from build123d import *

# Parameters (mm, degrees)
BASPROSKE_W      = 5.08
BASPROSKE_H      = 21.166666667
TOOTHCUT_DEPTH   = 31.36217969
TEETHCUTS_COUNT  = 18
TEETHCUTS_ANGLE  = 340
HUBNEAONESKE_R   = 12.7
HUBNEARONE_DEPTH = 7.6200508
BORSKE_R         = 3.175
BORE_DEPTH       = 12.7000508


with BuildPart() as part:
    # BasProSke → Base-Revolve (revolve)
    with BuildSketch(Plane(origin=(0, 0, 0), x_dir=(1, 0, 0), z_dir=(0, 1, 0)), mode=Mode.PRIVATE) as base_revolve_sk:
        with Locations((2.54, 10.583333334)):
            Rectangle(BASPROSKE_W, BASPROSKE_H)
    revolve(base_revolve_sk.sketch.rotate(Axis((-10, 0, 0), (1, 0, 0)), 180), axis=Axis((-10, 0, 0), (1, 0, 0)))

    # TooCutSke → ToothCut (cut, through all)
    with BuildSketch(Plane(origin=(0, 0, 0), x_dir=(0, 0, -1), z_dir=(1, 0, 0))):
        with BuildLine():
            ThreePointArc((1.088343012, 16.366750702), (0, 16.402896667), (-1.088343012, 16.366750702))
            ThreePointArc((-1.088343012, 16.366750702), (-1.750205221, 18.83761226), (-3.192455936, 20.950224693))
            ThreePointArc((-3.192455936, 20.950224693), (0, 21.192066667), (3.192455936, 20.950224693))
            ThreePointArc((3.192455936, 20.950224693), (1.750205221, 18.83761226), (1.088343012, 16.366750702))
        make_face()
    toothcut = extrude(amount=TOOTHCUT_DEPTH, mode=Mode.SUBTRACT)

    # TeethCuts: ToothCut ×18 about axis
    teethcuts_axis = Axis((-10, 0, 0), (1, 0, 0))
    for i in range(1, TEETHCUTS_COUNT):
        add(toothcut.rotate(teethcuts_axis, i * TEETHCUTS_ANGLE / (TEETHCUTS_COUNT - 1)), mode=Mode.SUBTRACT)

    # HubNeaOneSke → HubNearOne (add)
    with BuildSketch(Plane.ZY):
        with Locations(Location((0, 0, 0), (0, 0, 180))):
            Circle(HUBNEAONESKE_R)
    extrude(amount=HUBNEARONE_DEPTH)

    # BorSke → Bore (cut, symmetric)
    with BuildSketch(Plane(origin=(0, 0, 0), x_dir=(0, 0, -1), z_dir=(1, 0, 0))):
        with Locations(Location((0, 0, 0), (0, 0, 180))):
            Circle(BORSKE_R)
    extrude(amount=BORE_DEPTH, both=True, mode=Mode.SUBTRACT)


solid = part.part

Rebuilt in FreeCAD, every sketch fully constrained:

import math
import FreeCAD as App
import Part
import Sketcher
Q = App.Units.Quantity

doc = App.newDocument("Part")
params = doc.addObject("Spreadsheet::Sheet", "Params")
for row, (alias, value) in enumerate([
    ("sketch1_width", "0.2 in"),
    ("revolution_angle", "360 deg"),
    ("sketch2_radius", "0.3 in"),
    ("sketch3_diameter", "1 in"),
    ("pad1_length", "7.620051 mm"),
    ("sketch4_diameter", "0.25 in"),
    ("pocket2_length", "25.400102 mm"),
], start=1):
    params.set(f"A{row}", alias)
    params.set(f"B{row}", "=" + value)
    params.setAlias(f"B{row}", alias)

body = doc.addObject("PartDesign::Body", "Body")

# Sketch on XZ plane
sketch1 = doc.addObject("Sketcher::SketchObject", "Sketch")
body.addObject(sketch1)
sketch1.AttachmentSupport = (doc.XZ_Plane, [""])
sketch1.MapMode = "FlatFace"
sketch1.addGeometry([
    Part.LineSegment(App.Vector(0, -21, 0), App.Vector(0, 0, 0)),
    Part.LineSegment(App.Vector(0, 0, 0), App.Vector(5, 0, 0)),
    Part.LineSegment(App.Vector(5, 0, 0), App.Vector(5, -21, 0)),
    Part.LineSegment(App.Vector(5, -21, 0), App.Vector(0, -21, 0)),
], False)
sketch1.addConstraint([
    Sketcher.Constraint("Coincident", 0, 2, 1, 1),
    Sketcher.Constraint("Coincident", 1, 2, 2, 1),
    Sketcher.Constraint("Coincident", 2, 2, 3, 1),
    Sketcher.Constraint("Coincident", 3, 2, 0, 1),
    Sketcher.Constraint("Vertical", 0),
    Sketcher.Constraint("Horizontal", 1),
    Sketcher.Constraint("Vertical", 2),
    Sketcher.Constraint("Horizontal", 3),
    Sketcher.Constraint("Coincident", 0, 2, -1, 1),
    Sketcher.Constraint("DistanceX", 1, 1, 1, 2, Q("0.2 in")),
    Sketcher.Constraint("DistanceY", 0, 1, 0, 2, 21.166667),
])
sketch1.setExpression("Constraints[9]", "Params.sketch1_width")
revolution = doc.addObject("PartDesign::Revolution", "Revolution")
body.addObject(revolution)
revolution.Profile = sketch1
revolution.ReferenceAxis = (sketch1, ["H_Axis"])
revolution.setExpression("Angle", "Params.revolution_angle")

# Sketch on YZ plane
sketch2 = doc.addObject("Sketcher::SketchObject", "Sketch001")
body.addObject(sketch2)
sketch2.AttachmentSupport = (doc.YZ_Plane, [""])
sketch2.MapMode = "FlatFace"
sketch2.addGeometry([
    Part.ArcOfCircle(Part.Circle(App.Vector(0, 0, 0), App.Vector(0, 0, 1), 16.4), math.radians(-3.8), math.radians(3.8)),
    Part.ArcOfCircle(Part.Circle(App.Vector(15.7, -8.7, 0), App.Vector(0, 0, 1), 7.6), math.radians(46), math.radians(85)),
    Part.ArcOfCircle(Part.Circle(App.Vector(0, 0, 0), App.Vector(0, 0, 1), 21.2), math.radians(-8.66), math.radians(8.66)),
    Part.ArcOfCircle(Part.Circle(App.Vector(15.7, 8.7, 0), App.Vector(0, 0, 1), 7.6), math.radians(-85), math.radians(-46)),
], False)
sketch2.addConstraint([
    Sketcher.Constraint("Coincident", 0, 1, 1, 2),
    Sketcher.Constraint("Coincident", 1, 1, 2, 1),
    Sketcher.Constraint("Coincident", 2, 2, 3, 2),
    Sketcher.Constraint("Coincident", 3, 1, 0, 2),
    Sketcher.Constraint("Coincident", 0, 3, -1, 1),
    Sketcher.Constraint("Coincident", 2, 3, -1, 1),
    Sketcher.Constraint("Equal", 1, 3),
    Sketcher.Constraint("Symmetric", 1, 3, 3, 3, -1),
    Sketcher.Constraint("Radius", 1, Q("0.3 in")),
    Sketcher.Constraint("Radius", 0, 16.402896),
    Sketcher.Constraint("Radius", 2, 21.192067),
    Sketcher.Constraint("DistanceY", 0, 1, 3, 3, 9.763701),
    Sketcher.Constraint("DistanceY", 0, 1, 2, 2, 4.280799),
])
sketch2.setExpression("Constraints[8]", "Params.sketch2_radius")
pocket1 = doc.addObject("PartDesign::Pocket", "Pocket")
body.addObject(pocket1)
pocket1.Profile = sketch2
pocket1.Type = "ThroughAll"
pocket1.Reversed = True
doc.recompute()

polarpattern = doc.addObject("PartDesign::PolarPattern", "PolarPattern")
body.addObject(polarpattern)
polarpattern.Originals = [pocket1]
polarpattern.Axis = (doc.X_Axis, [""])
polarpattern.Angle = 360
polarpattern.Occurrences = 18
body.Tip = polarpattern

# Sketch on YZ plane
sketch3 = doc.addObject("Sketcher::SketchObject", "Sketch002")
body.addObject(sketch3)
sketch3.AttachmentSupport = (doc.YZ_Plane, [""])
sketch3.MapMode = "FlatFace"
sketch3.addGeometry(Part.Circle(App.Vector(0, 0, 0), App.Vector(0, 0, 1), 13), False)
sketch3.addConstraint([
    Sketcher.Constraint("Coincident", 0, 3, -1, 1),
    Sketcher.Constraint("Diameter", 0, Q("1 in")),
])
sketch3.setExpression("Constraints[1]", "Params.sketch3_diameter")
pad1 = doc.addObject("PartDesign::Pad", "Pad")
body.addObject(pad1)
pad1.Profile = sketch3
pad1.setExpression("Length", "Params.pad1_length")
pad1.Reversed = True

# Sketch on YZ plane
sketch4 = doc.addObject("Sketcher::SketchObject", "Sketch003")
body.addObject(sketch4)
sketch4.AttachmentSupport = (doc.YZ_Plane, [""])
sketch4.MapMode = "FlatFace"
sketch4.addGeometry(Part.Circle(App.Vector(0, 0, 0), App.Vector(0, 0, 1), 3.2), False)
sketch4.addConstraint([
    Sketcher.Constraint("Coincident", 0, 3, -1, 1),
    Sketcher.Constraint("Diameter", 0, Q("0.25 in")),
])
sketch4.setExpression("Constraints[1]", "Params.sketch4_diameter")
pocket2 = doc.addObject("PartDesign::Pocket", "Pocket001")
body.addObject(pocket2)
pocket2.Profile = sketch4
pocket2.setExpression("Length", "Params.pocket2_length")
pocket2.Midplane = True

doc.recompute()
